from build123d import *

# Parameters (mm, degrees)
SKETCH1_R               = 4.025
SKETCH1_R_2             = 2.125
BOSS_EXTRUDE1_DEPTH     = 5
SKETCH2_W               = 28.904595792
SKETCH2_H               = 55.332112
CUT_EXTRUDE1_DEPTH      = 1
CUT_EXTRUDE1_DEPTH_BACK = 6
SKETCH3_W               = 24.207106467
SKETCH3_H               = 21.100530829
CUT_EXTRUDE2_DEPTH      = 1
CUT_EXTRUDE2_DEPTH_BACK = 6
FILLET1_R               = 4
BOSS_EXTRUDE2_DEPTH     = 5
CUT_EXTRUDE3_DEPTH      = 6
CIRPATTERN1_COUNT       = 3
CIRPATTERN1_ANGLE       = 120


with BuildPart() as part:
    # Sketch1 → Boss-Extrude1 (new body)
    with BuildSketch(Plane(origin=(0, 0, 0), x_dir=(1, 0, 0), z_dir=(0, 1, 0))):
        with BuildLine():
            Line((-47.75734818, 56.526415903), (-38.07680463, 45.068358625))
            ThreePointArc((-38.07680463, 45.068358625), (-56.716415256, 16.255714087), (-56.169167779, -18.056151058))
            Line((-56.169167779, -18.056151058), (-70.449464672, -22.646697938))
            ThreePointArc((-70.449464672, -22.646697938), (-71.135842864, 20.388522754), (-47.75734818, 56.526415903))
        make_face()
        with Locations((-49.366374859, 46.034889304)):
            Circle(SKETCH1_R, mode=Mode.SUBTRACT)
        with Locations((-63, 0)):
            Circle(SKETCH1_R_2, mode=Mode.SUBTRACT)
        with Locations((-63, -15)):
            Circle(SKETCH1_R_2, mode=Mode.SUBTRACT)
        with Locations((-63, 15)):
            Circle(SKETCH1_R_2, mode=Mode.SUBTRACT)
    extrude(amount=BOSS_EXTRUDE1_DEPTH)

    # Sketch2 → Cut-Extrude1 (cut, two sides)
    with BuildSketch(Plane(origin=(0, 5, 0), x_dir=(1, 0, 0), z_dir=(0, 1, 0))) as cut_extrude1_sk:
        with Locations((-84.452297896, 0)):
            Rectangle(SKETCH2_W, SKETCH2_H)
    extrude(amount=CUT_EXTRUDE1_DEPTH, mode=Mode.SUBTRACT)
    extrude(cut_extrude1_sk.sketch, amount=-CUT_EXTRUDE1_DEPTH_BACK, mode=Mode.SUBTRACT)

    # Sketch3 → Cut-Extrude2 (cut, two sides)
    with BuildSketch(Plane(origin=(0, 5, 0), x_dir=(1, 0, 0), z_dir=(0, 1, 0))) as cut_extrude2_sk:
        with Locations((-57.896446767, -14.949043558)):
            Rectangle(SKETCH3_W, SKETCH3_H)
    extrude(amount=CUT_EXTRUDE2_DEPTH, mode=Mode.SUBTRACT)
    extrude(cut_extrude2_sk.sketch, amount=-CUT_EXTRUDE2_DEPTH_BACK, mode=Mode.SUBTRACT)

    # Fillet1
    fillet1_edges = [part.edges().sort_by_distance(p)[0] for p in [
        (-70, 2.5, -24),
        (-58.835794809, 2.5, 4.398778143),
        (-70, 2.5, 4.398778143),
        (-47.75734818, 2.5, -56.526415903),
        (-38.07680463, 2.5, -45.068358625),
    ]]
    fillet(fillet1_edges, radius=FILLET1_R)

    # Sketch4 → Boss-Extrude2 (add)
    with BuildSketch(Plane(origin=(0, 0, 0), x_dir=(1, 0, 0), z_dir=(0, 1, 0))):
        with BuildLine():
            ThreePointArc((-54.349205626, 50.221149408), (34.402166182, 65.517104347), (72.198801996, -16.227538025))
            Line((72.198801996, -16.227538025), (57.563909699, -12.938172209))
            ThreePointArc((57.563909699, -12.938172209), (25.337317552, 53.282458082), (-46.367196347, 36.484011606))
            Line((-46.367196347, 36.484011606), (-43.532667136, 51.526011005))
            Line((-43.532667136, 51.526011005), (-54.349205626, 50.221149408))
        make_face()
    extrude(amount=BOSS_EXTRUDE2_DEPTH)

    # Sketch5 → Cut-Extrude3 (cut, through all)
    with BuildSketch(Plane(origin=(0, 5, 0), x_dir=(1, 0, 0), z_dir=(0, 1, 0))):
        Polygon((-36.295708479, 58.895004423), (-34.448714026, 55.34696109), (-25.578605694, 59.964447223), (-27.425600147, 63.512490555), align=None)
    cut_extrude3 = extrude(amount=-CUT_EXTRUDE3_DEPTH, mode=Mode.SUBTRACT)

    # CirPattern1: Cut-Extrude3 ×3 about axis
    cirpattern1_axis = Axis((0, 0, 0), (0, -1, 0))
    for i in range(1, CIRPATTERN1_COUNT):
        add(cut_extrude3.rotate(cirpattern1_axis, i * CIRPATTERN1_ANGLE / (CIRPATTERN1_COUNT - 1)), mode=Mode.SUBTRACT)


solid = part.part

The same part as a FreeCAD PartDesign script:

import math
import FreeCAD as App
import Part
import Sketcher
from FreeCAD import Vector
Q = App.Units.Quantity


def edges_at(feature, points):
    """Names of the edges that pass closest to the given points."""
    edges = feature.Shape.Edges
    near = lambda p: min(range(len(edges)), key=lambda i: edges[i].distToShape(Part.Vertex(*p))[0])
    return sorted({f"Edge{near(p) + 1}" for p in points})

doc = App.newDocument("Part")
body = doc.addObject("PartDesign::Body", "Body")

sketch1 = doc.addObject("Sketcher::SketchObject", "Sketch")
body.addObject(sketch1)
sketch1.AttachmentSupport = (doc.XZ_Plane, [""])
sketch1.MapMode = "FlatFace"
sketch1.addGeometry(Part.LineSegment(Vector(-38.076805, -45.068359, 0), Vector(-47.757348, -56.526416, 0)), False)
sketch1.addGeometry(Part.ArcOfCircle(Part.Circle(Vector(0, 0, 0), Vector(0, 0, 1), 74), math.radians(162.179469), math.radians(229.80661)), False)
sketch1.addGeometry(Part.LineSegment(Vector(-70.449465, 22.646698, 0), Vector(-56.169168, 18.056151, 0)), False)
sketch1.addGeometry(Part.ArcOfCircle(Part.Circle(Vector(0, 0, 0), Vector(0, 0, 1), 59), math.radians(162.179469), math.radians(229.80661)), False)
sketch1.addGeometry(Part.Circle(Vector(-63, 15, 0), Vector(0, 0, 1), 2.125), False)
sketch1.addGeometry(Part.Circle(Vector(-63, 0, 0), Vector(0, 0, 1), 2.125), False)
sketch1.addGeometry(Part.Circle(Vector(-63, -15, 0), Vector(0, 0, 1), 2.125), False)
sketch1.addGeometry(Part.Circle(Vector(-49.366375, -46.034889, 0), Vector(0, 0, 1), 4.025), False)
sketch1.addConstraint(Sketcher.Constraint("Coincident", 0, 2, 1, 2))
sketch1.addConstraint(Sketcher.Constraint("Coincident", 1, 1, 2, 1))
sketch1.addConstraint(Sketcher.Constraint("Coincident", 2, 2, 3, 1))
sketch1.addConstraint(Sketcher.Constraint("Coincident", 3, 2, 0, 1))
sketch1.addConstraint(Sketcher.Constraint("Coincident", 1, 3, -1, 1))
sketch1.addConstraint(Sketcher.Constraint("Coincident", 3, 3, -1, 1))
sketch1.addConstraint(Sketcher.Constraint("Equal", 4, 5))
sketch1.addConstraint(Sketcher.Constraint("Equal", 5, 6))
sketch1.addConstraint(Sketcher.Constraint("Symmetric", 4, 3, 6, 3, -1))
sketch1.addConstraint(Sketcher.Constraint("PointOnObject", 5, 3, -1))
sketch1.addConstraint(Sketcher.Constraint("Vertical", 4, 3, 5, 3))
sketch1.addConstraint(Sketcher.Constraint("Radius", 1, 74.0))
sketch1.addConstraint(Sketcher.Constraint("Radius", 3, 59.0))
sketch1.addConstraint(Sketcher.Constraint("Diameter", 4, 4.25))
sketch1.addConstraint(Sketcher.Constraint("Diameter", 7, 8.05))
sketch1.addConstraint(Sketcher.Constraint("DistanceX", 4, 3, -1, 1, 63.0))
sketch1.addConstraint(Sketcher.Constraint("DistanceY", -1, 1, 4, 3, 15.0))
sketch1.addConstraint(Sketcher.Constraint("DistanceY", 7, 3, -1, 1, 46.034889))
sketch1.addConstraint(Sketcher.Constraint("DistanceX", 0, 2, -1, 1, 47.757348))
sketch1.addConstraint(Sketcher.Constraint("DistanceY", -1, 1, 2, 2, 18.056151))
sketch1.addConstraint(Sketcher.Constraint("DistanceY", 3, 2, -1, 1, 45.068359))
sketch1.addConstraint(Sketcher.Constraint("DistanceX", 1, 1, 7, 3, 21.08309))
sketch1.addConstraint(Sketcher.Constraint("DistanceX", 7, 3, 3, 2, 11.28957))
pad1 = doc.addObject("PartDesign::Pad", "Pad")
body.addObject(pad1)
pad1.Profile = sketch1
pad1.Length = 5
pad1.Reversed = True

sketch2 = doc.addObject("Sketcher::SketchObject", "Sketch001")
body.addObject(sketch2)
sketch2.AttachmentSupport = (doc.XZ_Plane, [""])
sketch2.MapMode = "FlatFace"
sketch2.AttachmentOffset = App.Placement(Vector(0, 0, -5), App.Rotation())
sketch2.addGeometry(Part.LineSegment(Vector(-98.904596, -27.666056, 0), Vector(-98.904596, 27.666056, 0)), False)
sketch2.addGeometry(Part.LineSegment(Vector(-98.904596, 27.666056, 0), Vector(-70, 27.666056, 0)), False)
sketch2.addGeometry(Part.LineSegment(Vector(-70, 27.666056, 0), Vector(-70, -27.666056, 0)), False)
sketch2.addGeometry(Part.LineSegment(Vector(-70, -27.666056, 0), Vector(-98.904596, -27.666056, 0)), False)
sketch2.addConstraint(Sketcher.Constraint("Coincident", 0, 2, 1, 1))
sketch2.addConstraint(Sketcher.Constraint("Coincident", 1, 2, 2, 1))
sketch2.addConstraint(Sketcher.Constraint("Coincident", 2, 2, 3, 1))
sketch2.addConstraint(Sketcher.Constraint("Coincident", 3, 2, 0, 1))
sketch2.addConstraint(Sketcher.Constraint("Vertical", 0))
sketch2.addConstraint(Sketcher.Constraint("Horizontal", 1))
sketch2.addConstraint(Sketcher.Constraint("Vertical", 2))
sketch2.addConstraint(Sketcher.Constraint("Horizontal", 3))
sketch2.addConstraint(Sketcher.Constraint("DistanceX", 1, 2, -1, 1, 70.0))
sketch2.addConstraint(Sketcher.Constraint("DistanceX", 1, 1, 1, 2, 28.904596))
sketch2.addConstraint(Sketcher.Constraint("DistanceY", 0, 1, 0, 2, 55.332112))
sketch2.addConstraint(Sketcher.Constraint("DistanceY", -1, 1, 0, 2, 27.666056))
pocket1 = doc.addObject("PartDesign::Pocket", "Pocket")
body.addObject(pocket1)
pocket1.Profile = sketch2
pocket1.Type = "ThroughAll"
pocket1.Midplane = True

sketch3 = doc.addObject("Sketcher::SketchObject", "Sketch002")
body.addObject(sketch3)
sketch3.AttachmentSupport = (doc.XZ_Plane, [""])
sketch3.MapMode = "FlatFace"
sketch3.AttachmentOffset = App.Placement(Vector(0, 0, -5), App.Rotation())
sketch3.addGeometry(Part.LineSegment(Vector(-70, 4.398778, 0), Vector(-70, 25.499309, 0)), False)
sketch3.addGeometry(Part.LineSegment(Vector(-70, 25.499309, 0), Vector(-45.792894, 25.499309, 0)), False)
sketch3.addGeometry(Part.LineSegment(Vector(-45.792894, 25.499309, 0), Vector(-45.792894, 4.398778, 0)), False)
sketch3.addGeometry(Part.LineSegment(Vector(-45.792894, 4.398778, 0), Vector(-70, 4.398778, 0)), False)
sketch3.addConstraint(Sketcher.Constraint("Coincident", 0, 2, 1, 1))
sketch3.addConstraint(Sketcher.Constraint("Coincident", 1, 2, 2, 1))
sketch3.addConstraint(Sketcher.Constraint("Coincident", 2, 2, 3, 1))
sketch3.addConstraint(Sketcher.Constraint("Coincident", 3, 2, 0, 1))
sketch3.addConstraint(Sketcher.Constraint("Vertical", 0))
sketch3.addConstraint(Sketcher.Constraint("Horizontal", 1))
sketch3.addConstraint(Sketcher.Constraint("Vertical", 2))
sketch3.addConstraint(Sketcher.Constraint("Horizontal", 3))
sketch3.addConstraint(Sketcher.Constraint("DistanceX", 0, 2, -1, 1, 70.0))
sketch3.addConstraint(Sketcher.Constraint("DistanceY", 0, 1, 0, 2, 21.100531))
sketch3.addConstraint(Sketcher.Constraint("DistanceX", 1, 1, 1, 2, 24.207106))
sketch3.addConstraint(Sketcher.Constraint("DistanceY", -1, 1, 0, 2, 25.499309))
pocket2 = doc.addObject("PartDesign::Pocket", "Pocket001")
body.addObject(pocket2)
pocket2.Profile = sketch3
pocket2.Type = "ThroughAll"
pocket2.Midplane = True
doc.recompute()

fillet = doc.addObject("PartDesign::Fillet", "Fillet")
body.addObject(fillet)
fillet.Base = (pocket2, edges_at(pocket2, [
    (-70, 2.5, -24),
    (-58.836, 2.5, 4.399),
    (-70, 2.5, 4.399),
    (-47.757, 2.5, -56.526),
    (-38.077, 2.5, -45.068),
]))
fillet.Radius = 4

sketch4 = doc.addObject("Sketcher::SketchObject", "Sketch003")
body.addObject(sketch4)
sketch4.AttachmentSupport = (doc.XZ_Plane, [""])
sketch4.MapMode = "FlatFace"
sketch4.addGeometry(Part.ArcOfCircle(Part.Circle(Vector(0, 0, 0), Vector(0, 0, 1), 74), math.radians(-137.260655), math.radians(12.667397)), False)
sketch4.addGeometry(Part.LineSegment(Vector(-54.349206, -50.221149, 0), Vector(-43.532667, -51.526011, 0)), False)
sketch4.addGeometry(Part.LineSegment(Vector(-43.532667, -51.526011, 0), Vector(-46.367196, -36.484012, 0)), False)
sketch4.addGeometry(Part.ArcOfCircle(Part.Circle(Vector(0, 0, 0), Vector(0, 0, 1), 59), math.radians(-141.802575), math.radians(12.667397)), False)
sketch4.addGeometry(Part.LineSegment(Vector(57.56391, 12.938172, 0), Vector(72.198802, 16.227538, 0)), False)
sketch4.addConstraint(Sketcher.Constraint("Coincident", 0, 1, 1, 1))
sketch4.addConstraint(Sketcher.Constraint("Coincident", 1, 2, 2, 1))
sketch4.addConstraint(Sketcher.Constraint("Coincident", 2, 2, 3, 1))
sketch4.addConstraint(Sketcher.Constraint("Coincident", 3, 2, 4, 1))
sketch4.addConstraint(Sketcher.Constraint("Coincident", 4, 2, 0, 2))
sketch4.addConstraint(Sketcher.Constraint("Coincident", 0, 3, -1, 1))
sketch4.addConstraint(Sketcher.Constraint("Coincident", 3, 3, -1, 1))
sketch4.addConstraint(Sketcher.Constraint("Radius", 0, 74.0))
sketch4.addConstraint(Sketcher.Constraint("Radius", 3, 59.0))
sketch4.addConstraint(Sketcher.Constraint("DistanceY", 1, 2, 2, 2, 15.041999))
sketch4.addConstraint(Sketcher.Constraint("DistanceX", 2, 2, 4, 2, 118.565998))
sketch4.addConstraint(Sketcher.Constraint("DistanceX", -1, 1, 4, 2, 72.198802))
sketch4.addConstraint(Sketcher.Constraint("Distance", 1, 10.894961))
sketch4.addConstraint(Sketcher.Constraint("Distance", 2, 15.30674))
sketch4.addConstraint(Sketcher.Constraint("DistanceX", -1, 1, 3, 2, 57.56391))
pad2 = doc.addObject("PartDesign::Pad", "Pad001")
body.addObject(pad2)
pad2.Profile = sketch4
pad2.Length = 5
pad2.Reversed = True

sketch5 = doc.addObject("Sketcher::SketchObject", "Sketch004")
body.addObject(sketch5)
sketch5.AttachmentSupport = (doc.XZ_Plane, [""])
sketch5.MapMode = "FlatFace"
sketch5.AttachmentOffset = App.Placement(Vector(0, 0, -5), App.Rotation())
sketch5.addGeometry(Part.LineSegment(Vector(-36.295708, -58.895004, 0), Vector(-34.448714, -55.346961, 0)), False)
sketch5.addGeometry(Part.LineSegment(Vector(-34.448714, -55.346961, 0), Vector(-25.578606, -59.964447, 0)), False)
sketch5.addGeometry(Part.LineSegment(Vector(-25.578606, -59.964447, 0), Vector(-27.4256, -63.512491, 0)), False)
sketch5.addGeometry(Part.LineSegment(Vector(-27.4256, -63.512491, 0), Vector(-36.295708, -58.895004, 0)), False)
sketch5.addConstraint(Sketcher.Constraint("Coincident", 0, 2, 1, 1))
sketch5.addConstraint(Sketcher.Constraint("Coincident", 1, 2, 2, 1))
sketch5.addConstraint(Sketcher.Constraint("Coincident", 2, 2, 3, 1))
sketch5.addConstraint(Sketcher.Constraint("Coincident", 3, 2, 0, 1))
sketch5.addConstraint(Sketcher.Constraint("Perpendicular", 0, 1))
sketch5.addConstraint(Sketcher.Constraint("Perpendicular", 1, 2))
sketch5.addConstraint(Sketcher.Constraint("Perpendicular", 2, 3))
sketch5.addConstraint(Sketcher.Constraint("Distance", 0, 4.0))
sketch5.addConstraint(Sketcher.Constraint("Distance", 1, 10.0))
sketch5.addConstraint(Sketcher.Constraint("Angle", 0, Q("62.5 deg")))
sketch5.addConstraint(Sketcher.Constraint("DistanceX", 2, 2, -1, 1, 27.4256))
sketch5.addConstraint(Sketcher.Constraint("DistanceY", 0, 2, -1, 1, 55.346961))
pocket3 = doc.addObject("PartDesign::Pocket", "Pocket002")
body.addObject(pocket3)
pocket3.Profile = sketch5
pocket3.Type = "ThroughAll"
pocket3.Reversed = True
doc.recompute()

polarpattern = doc.addObject("PartDesign::PolarPattern", "PolarPattern")
body.addObject(polarpattern)
polarpattern.Originals = [pocket3]
polarpattern.Axis = (doc.Y_Axis, [""])
polarpattern.Angle = 120
polarpattern.Occurrences = 3
polarpattern.Reversed = True
body.Tip = polarpattern

doc.recompute()
